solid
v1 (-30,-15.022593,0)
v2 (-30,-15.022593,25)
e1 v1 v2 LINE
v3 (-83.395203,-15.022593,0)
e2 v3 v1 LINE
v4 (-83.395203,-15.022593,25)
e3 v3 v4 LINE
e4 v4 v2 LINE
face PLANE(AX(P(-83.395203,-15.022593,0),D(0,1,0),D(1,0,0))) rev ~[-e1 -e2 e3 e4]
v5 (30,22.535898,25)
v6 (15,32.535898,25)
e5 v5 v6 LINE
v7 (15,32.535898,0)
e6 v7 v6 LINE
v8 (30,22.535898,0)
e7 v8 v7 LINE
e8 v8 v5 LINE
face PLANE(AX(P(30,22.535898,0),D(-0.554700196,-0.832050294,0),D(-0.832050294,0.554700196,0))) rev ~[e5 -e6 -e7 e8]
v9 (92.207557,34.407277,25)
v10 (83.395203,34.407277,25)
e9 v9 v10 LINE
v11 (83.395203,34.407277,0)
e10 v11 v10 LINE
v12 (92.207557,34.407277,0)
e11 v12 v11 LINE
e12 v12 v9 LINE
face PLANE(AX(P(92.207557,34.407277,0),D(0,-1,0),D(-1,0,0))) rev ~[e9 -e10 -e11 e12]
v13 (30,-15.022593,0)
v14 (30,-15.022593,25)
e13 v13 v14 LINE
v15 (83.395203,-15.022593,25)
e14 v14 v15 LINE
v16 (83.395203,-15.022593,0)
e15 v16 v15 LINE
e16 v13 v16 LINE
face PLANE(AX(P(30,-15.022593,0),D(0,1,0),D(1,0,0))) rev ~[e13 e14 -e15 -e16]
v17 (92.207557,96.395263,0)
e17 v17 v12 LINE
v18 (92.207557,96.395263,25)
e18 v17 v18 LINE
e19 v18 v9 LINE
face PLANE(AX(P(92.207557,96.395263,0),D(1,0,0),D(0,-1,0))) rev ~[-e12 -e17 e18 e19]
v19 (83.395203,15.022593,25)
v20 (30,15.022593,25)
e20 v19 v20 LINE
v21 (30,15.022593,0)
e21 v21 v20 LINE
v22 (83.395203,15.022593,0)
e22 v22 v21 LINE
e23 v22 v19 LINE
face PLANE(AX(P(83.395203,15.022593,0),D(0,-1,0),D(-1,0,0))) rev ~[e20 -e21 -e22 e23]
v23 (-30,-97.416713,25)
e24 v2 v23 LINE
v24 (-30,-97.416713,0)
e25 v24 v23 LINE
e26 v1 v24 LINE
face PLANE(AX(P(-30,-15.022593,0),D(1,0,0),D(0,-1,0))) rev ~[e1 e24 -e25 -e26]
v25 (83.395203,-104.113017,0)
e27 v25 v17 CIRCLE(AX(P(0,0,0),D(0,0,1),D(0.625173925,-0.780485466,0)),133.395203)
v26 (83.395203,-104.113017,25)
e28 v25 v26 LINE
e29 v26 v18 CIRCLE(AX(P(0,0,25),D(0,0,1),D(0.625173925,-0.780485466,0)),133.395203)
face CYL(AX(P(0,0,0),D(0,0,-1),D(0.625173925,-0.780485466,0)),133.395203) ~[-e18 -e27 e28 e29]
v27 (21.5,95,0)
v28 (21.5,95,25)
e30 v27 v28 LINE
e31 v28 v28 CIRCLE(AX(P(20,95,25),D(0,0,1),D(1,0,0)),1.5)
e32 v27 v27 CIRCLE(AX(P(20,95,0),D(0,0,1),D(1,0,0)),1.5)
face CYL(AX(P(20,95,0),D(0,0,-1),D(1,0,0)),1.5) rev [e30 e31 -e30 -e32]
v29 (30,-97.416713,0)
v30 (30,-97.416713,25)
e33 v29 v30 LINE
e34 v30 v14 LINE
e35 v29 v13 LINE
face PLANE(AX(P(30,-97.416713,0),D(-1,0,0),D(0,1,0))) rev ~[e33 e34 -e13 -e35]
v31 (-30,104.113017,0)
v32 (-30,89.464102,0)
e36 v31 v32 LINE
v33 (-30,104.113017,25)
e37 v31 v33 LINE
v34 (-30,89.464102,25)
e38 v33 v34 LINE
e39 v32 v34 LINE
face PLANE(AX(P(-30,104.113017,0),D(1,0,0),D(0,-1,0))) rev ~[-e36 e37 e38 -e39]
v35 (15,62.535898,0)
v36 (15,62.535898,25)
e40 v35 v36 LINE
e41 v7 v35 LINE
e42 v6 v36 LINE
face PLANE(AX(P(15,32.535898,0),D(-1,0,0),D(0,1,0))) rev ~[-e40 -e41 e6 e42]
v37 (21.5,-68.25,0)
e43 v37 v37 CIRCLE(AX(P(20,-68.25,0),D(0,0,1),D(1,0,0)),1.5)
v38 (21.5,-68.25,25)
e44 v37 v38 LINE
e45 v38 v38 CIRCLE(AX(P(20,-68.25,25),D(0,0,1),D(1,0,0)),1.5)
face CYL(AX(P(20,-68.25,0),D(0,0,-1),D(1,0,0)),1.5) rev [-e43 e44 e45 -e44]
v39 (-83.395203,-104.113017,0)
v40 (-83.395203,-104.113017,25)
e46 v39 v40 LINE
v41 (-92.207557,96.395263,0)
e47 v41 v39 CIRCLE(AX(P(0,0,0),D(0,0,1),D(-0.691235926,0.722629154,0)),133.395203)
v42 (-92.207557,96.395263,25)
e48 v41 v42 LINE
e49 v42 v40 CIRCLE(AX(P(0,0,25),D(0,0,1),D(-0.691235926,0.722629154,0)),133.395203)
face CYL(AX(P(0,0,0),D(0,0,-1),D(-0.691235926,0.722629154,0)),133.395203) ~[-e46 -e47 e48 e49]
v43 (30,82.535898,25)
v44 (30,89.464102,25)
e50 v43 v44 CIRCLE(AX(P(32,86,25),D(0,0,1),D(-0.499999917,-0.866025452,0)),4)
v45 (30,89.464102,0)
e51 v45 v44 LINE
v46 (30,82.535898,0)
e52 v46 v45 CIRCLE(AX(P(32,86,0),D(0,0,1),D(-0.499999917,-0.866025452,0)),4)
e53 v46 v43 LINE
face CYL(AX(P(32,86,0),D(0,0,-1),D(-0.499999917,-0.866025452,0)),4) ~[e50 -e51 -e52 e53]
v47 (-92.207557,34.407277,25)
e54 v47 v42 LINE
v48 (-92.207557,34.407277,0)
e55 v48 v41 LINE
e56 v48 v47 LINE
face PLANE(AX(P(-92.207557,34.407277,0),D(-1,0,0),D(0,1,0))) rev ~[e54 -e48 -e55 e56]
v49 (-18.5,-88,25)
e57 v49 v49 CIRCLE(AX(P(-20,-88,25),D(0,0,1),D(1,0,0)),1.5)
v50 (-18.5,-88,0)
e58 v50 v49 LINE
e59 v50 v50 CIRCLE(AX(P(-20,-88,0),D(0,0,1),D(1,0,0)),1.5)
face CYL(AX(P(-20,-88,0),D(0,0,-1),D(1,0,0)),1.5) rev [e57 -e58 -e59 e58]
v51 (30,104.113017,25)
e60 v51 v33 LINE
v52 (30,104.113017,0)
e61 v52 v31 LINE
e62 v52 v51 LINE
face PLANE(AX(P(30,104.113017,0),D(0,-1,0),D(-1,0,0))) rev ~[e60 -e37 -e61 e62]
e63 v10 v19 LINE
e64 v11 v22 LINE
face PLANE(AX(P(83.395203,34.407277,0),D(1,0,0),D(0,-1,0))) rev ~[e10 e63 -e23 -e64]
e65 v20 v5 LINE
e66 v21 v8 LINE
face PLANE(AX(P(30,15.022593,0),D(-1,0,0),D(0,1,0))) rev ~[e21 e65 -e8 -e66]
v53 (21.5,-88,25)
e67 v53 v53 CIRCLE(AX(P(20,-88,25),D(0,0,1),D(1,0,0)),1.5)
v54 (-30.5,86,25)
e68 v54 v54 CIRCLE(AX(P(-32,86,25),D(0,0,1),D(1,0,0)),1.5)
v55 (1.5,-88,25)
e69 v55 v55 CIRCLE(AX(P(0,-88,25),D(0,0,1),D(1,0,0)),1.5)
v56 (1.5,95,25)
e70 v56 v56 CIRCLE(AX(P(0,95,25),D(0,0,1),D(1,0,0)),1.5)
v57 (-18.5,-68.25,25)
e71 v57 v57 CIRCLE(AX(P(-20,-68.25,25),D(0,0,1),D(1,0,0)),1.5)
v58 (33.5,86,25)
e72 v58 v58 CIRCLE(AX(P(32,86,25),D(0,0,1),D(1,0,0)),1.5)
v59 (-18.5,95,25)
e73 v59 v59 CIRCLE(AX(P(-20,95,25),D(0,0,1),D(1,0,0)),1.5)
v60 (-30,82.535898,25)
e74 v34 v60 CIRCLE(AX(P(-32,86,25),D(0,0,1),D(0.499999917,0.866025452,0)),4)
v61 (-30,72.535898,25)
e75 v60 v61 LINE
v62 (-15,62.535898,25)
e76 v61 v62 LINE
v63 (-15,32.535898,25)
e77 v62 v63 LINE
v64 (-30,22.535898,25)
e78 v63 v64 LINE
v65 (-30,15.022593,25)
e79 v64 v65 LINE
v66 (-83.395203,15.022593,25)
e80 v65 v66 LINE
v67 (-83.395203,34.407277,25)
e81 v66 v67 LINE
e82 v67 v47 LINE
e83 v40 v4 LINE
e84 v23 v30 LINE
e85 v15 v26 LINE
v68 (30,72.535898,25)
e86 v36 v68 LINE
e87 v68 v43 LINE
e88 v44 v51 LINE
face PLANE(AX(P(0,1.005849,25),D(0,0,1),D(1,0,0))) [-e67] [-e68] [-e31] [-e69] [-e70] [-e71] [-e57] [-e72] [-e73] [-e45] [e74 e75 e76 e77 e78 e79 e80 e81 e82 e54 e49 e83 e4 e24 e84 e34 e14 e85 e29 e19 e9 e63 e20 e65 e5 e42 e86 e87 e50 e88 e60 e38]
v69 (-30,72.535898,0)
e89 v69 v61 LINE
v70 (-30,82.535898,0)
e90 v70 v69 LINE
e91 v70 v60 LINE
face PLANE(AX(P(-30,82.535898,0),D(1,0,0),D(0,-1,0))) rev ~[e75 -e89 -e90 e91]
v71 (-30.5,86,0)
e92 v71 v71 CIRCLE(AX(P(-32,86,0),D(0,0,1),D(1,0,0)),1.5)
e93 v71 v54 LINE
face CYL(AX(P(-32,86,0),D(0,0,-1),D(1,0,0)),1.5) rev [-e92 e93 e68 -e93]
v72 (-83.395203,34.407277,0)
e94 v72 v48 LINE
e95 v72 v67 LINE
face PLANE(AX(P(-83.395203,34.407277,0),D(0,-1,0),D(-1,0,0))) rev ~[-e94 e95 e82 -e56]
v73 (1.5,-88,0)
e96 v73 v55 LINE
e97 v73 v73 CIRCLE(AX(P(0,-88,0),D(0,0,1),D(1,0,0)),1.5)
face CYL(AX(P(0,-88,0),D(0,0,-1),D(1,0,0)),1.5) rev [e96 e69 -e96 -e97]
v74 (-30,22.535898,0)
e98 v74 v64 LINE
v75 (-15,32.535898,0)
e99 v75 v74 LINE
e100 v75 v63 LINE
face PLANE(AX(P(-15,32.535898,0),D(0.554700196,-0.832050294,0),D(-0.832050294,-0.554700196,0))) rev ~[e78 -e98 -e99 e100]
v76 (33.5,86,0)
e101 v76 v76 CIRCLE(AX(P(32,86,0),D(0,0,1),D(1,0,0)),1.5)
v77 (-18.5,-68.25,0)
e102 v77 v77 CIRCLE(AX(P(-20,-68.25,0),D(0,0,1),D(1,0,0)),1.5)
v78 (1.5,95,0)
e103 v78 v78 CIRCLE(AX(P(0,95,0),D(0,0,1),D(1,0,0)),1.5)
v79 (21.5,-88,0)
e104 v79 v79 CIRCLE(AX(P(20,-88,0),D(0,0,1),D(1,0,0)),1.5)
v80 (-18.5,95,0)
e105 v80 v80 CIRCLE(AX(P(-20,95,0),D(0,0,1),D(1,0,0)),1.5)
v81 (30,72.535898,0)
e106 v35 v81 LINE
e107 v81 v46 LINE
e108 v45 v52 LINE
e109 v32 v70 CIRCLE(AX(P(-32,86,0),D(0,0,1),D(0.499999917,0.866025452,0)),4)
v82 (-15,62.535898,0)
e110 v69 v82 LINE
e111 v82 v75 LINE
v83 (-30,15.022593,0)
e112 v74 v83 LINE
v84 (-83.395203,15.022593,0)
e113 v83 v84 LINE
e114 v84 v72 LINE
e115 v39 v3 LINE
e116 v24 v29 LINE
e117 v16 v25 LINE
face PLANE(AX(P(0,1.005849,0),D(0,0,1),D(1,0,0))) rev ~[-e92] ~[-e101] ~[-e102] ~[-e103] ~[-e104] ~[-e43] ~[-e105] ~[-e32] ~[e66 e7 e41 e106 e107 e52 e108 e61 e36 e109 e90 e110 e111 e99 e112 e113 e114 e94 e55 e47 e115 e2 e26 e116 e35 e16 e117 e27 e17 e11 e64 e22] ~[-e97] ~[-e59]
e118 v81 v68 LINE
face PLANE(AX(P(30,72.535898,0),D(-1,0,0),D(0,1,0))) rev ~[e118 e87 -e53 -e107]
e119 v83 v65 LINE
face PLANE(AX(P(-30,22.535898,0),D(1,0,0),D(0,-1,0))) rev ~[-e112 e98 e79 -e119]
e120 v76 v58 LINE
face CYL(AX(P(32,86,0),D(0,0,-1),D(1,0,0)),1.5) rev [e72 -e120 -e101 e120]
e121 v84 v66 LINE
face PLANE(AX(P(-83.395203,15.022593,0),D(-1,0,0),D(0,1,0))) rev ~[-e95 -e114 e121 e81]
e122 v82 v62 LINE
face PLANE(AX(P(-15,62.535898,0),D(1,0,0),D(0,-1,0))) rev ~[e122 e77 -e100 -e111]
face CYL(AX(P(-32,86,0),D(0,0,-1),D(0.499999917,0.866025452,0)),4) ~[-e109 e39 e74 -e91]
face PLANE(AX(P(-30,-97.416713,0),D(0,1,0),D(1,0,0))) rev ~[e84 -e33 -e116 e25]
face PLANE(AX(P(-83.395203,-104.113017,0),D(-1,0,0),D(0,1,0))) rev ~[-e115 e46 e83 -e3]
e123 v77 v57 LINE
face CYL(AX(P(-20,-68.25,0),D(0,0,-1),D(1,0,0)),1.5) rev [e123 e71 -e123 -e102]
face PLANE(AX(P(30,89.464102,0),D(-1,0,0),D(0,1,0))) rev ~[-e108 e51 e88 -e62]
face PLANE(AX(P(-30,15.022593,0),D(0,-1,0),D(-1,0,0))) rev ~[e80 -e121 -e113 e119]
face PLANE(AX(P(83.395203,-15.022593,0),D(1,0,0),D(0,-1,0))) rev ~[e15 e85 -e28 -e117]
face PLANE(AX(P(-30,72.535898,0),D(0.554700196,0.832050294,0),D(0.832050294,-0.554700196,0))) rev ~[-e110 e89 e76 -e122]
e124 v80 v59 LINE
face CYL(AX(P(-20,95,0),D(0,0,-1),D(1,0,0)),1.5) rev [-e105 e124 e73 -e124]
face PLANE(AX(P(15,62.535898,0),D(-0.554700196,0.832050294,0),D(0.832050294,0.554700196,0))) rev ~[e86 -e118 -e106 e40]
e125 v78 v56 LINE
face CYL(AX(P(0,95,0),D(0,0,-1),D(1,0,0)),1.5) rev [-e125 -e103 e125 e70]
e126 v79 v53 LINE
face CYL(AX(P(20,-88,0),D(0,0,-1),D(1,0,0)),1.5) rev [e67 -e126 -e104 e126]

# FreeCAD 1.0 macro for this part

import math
import FreeCAD as App
import Part
import Sketcher
Q = App.Units.Quantity

doc = App.newDocument("Part")
body = doc.addObject("PartDesign::Body", "Body")

sketch1 = body.newObject("Sketcher::SketchObject", "Sketch")
sketch1.AttachmentSupport = (doc.getObject("XY_Plane"), [""])
sketch1.MapMode = "FlatFace"
sketch1.addGeometry(Part.LineSegment(App.Vector(-30, -15, 0), App.Vector(-30, -97.4, 0)), False)
sketch1.addGeometry(Part.LineSegment(App.Vector(-30, -97.4, 0), App.Vector(30, -97.4, 0)), False)
sketch1.addGeometry(Part.LineSegment(App.Vector(30, -97.4, 0), App.Vector(30, -15, 0)), False)
sketch1.addGeometry(Part.LineSegment(App.Vector(30, -15, 0), App.Vector(83.4, -15, 0)), False)
sketch1.addGeometry(Part.LineSegment(App.Vector(83.4, -15, 0), App.Vector(83.4, -104.1, 0)), False)
sketch1.addGeometry(Part.ArcOfCircle(Part.Circle(App.Vector(0, 0, 0), App.Vector(0, 0, 1), 133.4), math.radians(-51), math.radians(46)), False)
sketch1.addGeometry(Part.LineSegment(App.Vector(92.2, 96.4, 0), App.Vector(92.2, 34.4, 0)), False)
sketch1.addGeometry(Part.LineSegment(App.Vector(92.2, 34.4, 0), App.Vector(83.4, 34.4, 0)), False)
sketch1.addGeometry(Part.LineSegment(App.Vector(83.4, 34.4, 0), App.Vector(83.4, 15, 0)), False)
sketch1.addGeometry(Part.LineSegment(App.Vector(83.4, 15, 0), App.Vector(30, 15, 0)), False)
sketch1.addGeometry(Part.LineSegment(App.Vector(30, 15, 0), App.Vector(30, 22.5, 0)), False)
sketch1.addGeometry(Part.LineSegment(App.Vector(30, 22.5, 0), App.Vector(15, 32.5, 0)), False)
sketch1.addGeometry(Part.LineSegment(App.Vector(15, 32.5, 0), App.Vector(15, 62.5, 0)), False)
sketch1.addGeometry(Part.LineSegment(App.Vector(15, 62.5, 0), App.Vector(30, 72.5, 0)), False)
sketch1.addGeometry(Part.LineSegment(App.Vector(30, 72.5, 0), App.Vector(30, 82.5, 0)), False)
sketch1.addGeometry(Part.ArcOfCircle(Part.Circle(App.Vector(32, 86, 0), App.Vector(0, 0, 1), 4), math.radians(-120), math.radians(120)), False)
sketch1.addGeometry(Part.LineSegment(App.Vector(30, 89.5, 0), App.Vector(30, 104.1, 0)), False)
sketch1.addGeometry(Part.LineSegment(App.Vector(30, 104.1, 0), App.Vector(-30, 104.1, 0)), False)
sketch1.addGeometry(Part.LineSegment(App.Vector(-30, 104.1, 0), App.Vector(-30, 89.5, 0)), False)
sketch1.addGeometry(Part.ArcOfCircle(Part.Circle(App.Vector(-32, 86, 0), App.Vector(0, 0, 1), 4), math.radians(60), math.radians(300)), False)
sketch1.addGeometry(Part.LineSegment(App.Vector(-30, 82.5, 0), App.Vector(-30, 72.5, 0)), False)
sketch1.addGeometry(Part.LineSegment(App.Vector(-30, 72.5, 0), App.Vector(-15, 62.5, 0)), False)
sketch1.addGeometry(Part.LineSegment(App.Vector(-15, 62.5, 0), App.Vector(-15, 32.5, 0)), False)
sketch1.addGeometry(Part.LineSegment(App.Vector(-15, 32.5, 0), App.Vector(-30, 22.5, 0)), False)
sketch1.addGeometry(Part.LineSegment(App.Vector(-30, 22.5, 0), App.Vector(-30, 15, 0)), False)
sketch1.addGeometry(Part.LineSegment(App.Vector(-30, 15, 0), App.Vector(-83.4, 15, 0)), False)
sketch1.addGeometry(Part.LineSegment(App.Vector(-83.4, 15, 0), App.Vector(-83.4, 34.4, 0)), False)
sketch1.addGeometry(Part.LineSegment(App.Vector(-83.4, 34.4, 0), App.Vector(-92.2, 34.4, 0)), False)
sketch1.addGeometry(Part.LineSegment(App.Vector(-92.2, 34.4, 0), App.Vector(-92.2, 96.4, 0)), False)
sketch1.addGeometry(Part.ArcOfCircle(Part.Circle(App.Vector(0, 0, 0), App.Vector(0, 0, 1), 133.4), math.radians(134), math.radians(231)), False)
sketch1.addGeometry(Part.LineSegment(App.Vector(-83.4, -104.1, 0), App.Vector(-83.4, -15, 0)), False)
sketch1.addGeometry(Part.LineSegment(App.Vector(-83.4, -15, 0), App.Vector(-30, -15, 0)), False)
sketch1.addGeometry(Part.Circle(App.Vector(-20, -88, 0), App.Vector(0, 0, 1), 1.5), False)
sketch1.addGeometry(Part.Circle(App.Vector(-20, -68.2, 0), App.Vector(0, 0, 1), 1.5), False)
sketch1.addGeometry(Part.Circle(App.Vector(0, -88, 0), App.Vector(0, 0, 1), 1.5), False)
sketch1.addGeometry(Part.Circle(App.Vector(20, -88, 0), App.Vector(0, 0, 1), 1.5), False)
sketch1.addGeometry(Part.Circle(App.Vector(20, -68.2, 0), App.Vector(0, 0, 1), 1.5), False)
sketch1.addGeometry(Part.Circle(App.Vector(-32, 86, 0), App.Vector(0, 0, 1), 1.5), False)
sketch1.addGeometry(Part.Circle(App.Vector(-20, 95, 0), App.Vector(0, 0, 1), 1.5), False)
sketch1.addGeometry(Part.Circle(App.Vector(0, 95, 0), App.Vector(0, 0, 1), 1.5), False)
sketch1.addGeometry(Part.Circle(App.Vector(20, 95, 0), App.Vector(0, 0, 1), 1.5), False)
sketch1.addGeometry(Part.Circle(App.Vector(32, 86, 0), App.Vector(0, 0, 1), 1.5), False)
sketch1.addConstraint(Sketcher.Constraint("Coincident", 0, 2, 1, 1))
sketch1.addConstraint(Sketcher.Constraint("Coincident", 1, 2, 2, 1))
sketch1.addConstraint(Sketcher.Constraint("Coincident", 2, 2, 3, 1))
sketch1.addConstraint(Sketcher.Constraint("Coincident", 3, 2, 4, 1))
sketch1.addConstraint(Sketcher.Constraint("Coincident", 4, 2, 5, 1))
sketch1.addConstraint(Sketcher.Constraint("Coincident", 5, 2, 6, 1))
sketch1.addConstraint(Sketcher.Constraint("Coincident", 6, 2, 7, 1))
sketch1.addConstraint(Sketcher.Constraint("Coincident", 7, 2, 8, 1))
sketch1.addConstraint(Sketcher.Constraint("Coincident", 8, 2, 9, 1))
sketch1.addConstraint(Sketcher.Constraint("Coincident", 9, 2, 10, 1))
sketch1.addConstraint(Sketcher.Constraint("Coincident", 10, 2, 11, 1))
sketch1.addConstraint(Sketcher.Constraint("Coincident", 11, 2, 12, 1))
sketch1.addConstraint(Sketcher.Constraint("Coincident", 12, 2, 13, 1))
sketch1.addConstraint(Sketcher.Constraint("Coincident", 13, 2, 14, 1))
sketch1.addConstraint(Sketcher.Constraint("Coincident", 14, 2, 15, 1))
sketch1.addConstraint(Sketcher.Constraint("Coincident", 15, 2, 16, 1))
sketch1.addConstraint(Sketcher.Constraint("Coincident", 16, 2, 17, 1))
sketch1.addConstraint(Sketcher.Constraint("Coincident", 17, 2, 18, 1))
sketch1.addConstraint(Sketcher.Constraint("Coincident", 18, 2, 19, 1))
sketch1.addConstraint(Sketcher.Constraint("Coincident", 19, 2, 20, 1))
sketch1.addConstraint(Sketcher.Constraint("Coincident", 20, 2, 21, 1))
sketch1.addConstraint(Sketcher.Constraint("Coincident", 21, 2, 22, 1))
sketch1.addConstraint(Sketcher.Constraint("Coincident", 22, 2, 23, 1))
sketch1.addConstraint(Sketcher.Constraint("Coincident", 23, 2, 24, 1))
sketch1.addConstraint(Sketcher.Constraint("Coincident", 24, 2, 25, 1))
sketch1.addConstraint(Sketcher.Constraint("Coincident", 25, 2, 26, 1))
sketch1.addConstraint(Sketcher.Constraint("Coincident", 26, 2, 27, 1))
sketch1.addConstraint(Sketcher.Constraint("Coincident", 27, 2, 28, 1))
sketch1.addConstraint(Sketcher.Constraint("Coincident", 28, 2, 29, 1))
sketch1.addConstraint(Sketcher.Constraint("Coincident", 29, 2, 30, 1))
sketch1.addConstraint(Sketcher.Constraint("Coincident", 30, 2, 31, 1))
sketch1.addConstraint(Sketcher.Constraint("Coincident", 31, 2, 0, 1))
sketch1.addConstraint(Sketcher.Constraint("Vertical", 0))
sketch1.addConstraint(Sketcher.Constraint("Horizontal", 1))
sketch1.addConstraint(Sketcher.Constraint("Vertical", 2))
sketch1.addConstraint(Sketcher.Constraint("Horizontal", 3))
sketch1.addConstraint(Sketcher.Constraint("Vertical", 4))
sketch1.addConstraint(Sketcher.Constraint("Vertical", 6))
sketch1.addConstraint(Sketcher.Constraint("Horizontal", 7))
sketch1.addConstraint(Sketcher.Constraint("Vertical", 8))
sketch1.addConstraint(Sketcher.Constraint("Horizontal", 9))
sketch1.addConstraint(Sketcher.Constraint("Vertical", 10))
sketch1.addConstraint(Sketcher.Constraint("Vertical", 12))
sketch1.addConstraint(Sketcher.Constraint("Vertical", 14))
sketch1.addConstraint(Sketcher.Constraint("Vertical", 16))
sketch1.addConstraint(Sketcher.Constraint("Horizontal", 17))
sketch1.addConstraint(Sketcher.Constraint("Vertical", 18))
sketch1.addConstraint(Sketcher.Constraint("Vertical", 20))
sketch1.addConstraint(Sketcher.Constraint("Vertical", 22))
sketch1.addConstraint(Sketcher.Constraint("Vertical", 24))
sketch1.addConstraint(Sketcher.Constraint("Horizontal", 25))
sketch1.addConstraint(Sketcher.Constraint("Vertical", 26))
sketch1.addConstraint(Sketcher.Constraint("Horizontal", 27))
sketch1.addConstraint(Sketcher.Constraint("Vertical", 28))
sketch1.addConstraint(Sketcher.Constraint("Vertical", 30))
sketch1.addConstraint(Sketcher.Constraint("Horizontal", 31))
sketch1.addConstraint(Sketcher.Constraint("Coincident", 5, 3, -1, 1))
sketch1.addConstraint(Sketcher.Constraint("Coincident", 29, 3, -1, 1))
sketch1.addConstraint(Sketcher.Constraint("Coincident", 37, 3, 19, 3))
sketch1.addConstraint(Sketcher.Constraint("Coincident", 41, 3, 15, 3))
sketch1.addConstraint(Sketcher.Constraint("Equal", 15, 19))
sketch1.addConstraint(Sketcher.Constraint("Equal", 5, 29))
sketch1.addConstraint(Sketcher.Constraint("Equal", 32, 33))
sketch1.addConstraint(Sketcher.Constraint("Equal", 33, 34))
sketch1.addConstraint(Sketcher.Constraint("Equal", 34, 35))
sketch1.addConstraint(Sketcher.Constraint("Equal", 35, 36))
sketch1.addConstraint(Sketcher.Constraint("Equal", 36, 37))
sketch1.addConstraint(Sketcher.Constraint("Equal", 37, 38))
sketch1.addConstraint(Sketcher.Constraint("Equal", 38, 39))
sketch1.addConstraint(Sketcher.Constraint("Equal", 39, 40))
sketch1.addConstraint(Sketcher.Constraint("Equal", 40, 41))
sketch1.addConstraint(Sketcher.Constraint("Symmetric", 2, 2, 24, 2, -1, 1))
sketch1.addConstraint(Sketcher.Constraint("Symmetric", 8, 2, 30, 2, -1, 1))
sketch1.addConstraint(Sketcher.Constraint("Symmetric", 15, 3, 19, 3, -2))
sketch1.addConstraint(Sketcher.Constraint("Symmetric", 32, 3, 35, 3, -2))
sketch1.addConstraint(Sketcher.Constraint("Symmetric", 33, 3, 36, 3, -2))
sketch1.addConstraint(Sketcher.Constraint("Symmetric", 38, 3, 40, 3, -2))
sketch1.addConstraint(Sketcher.Constraint("Symmetric", 13, 2, 20, 2, -2))
sketch1.addConstraint(Sketcher.Constraint("Symmetric", 12, 2, 21, 2, -2))
sketch1.addConstraint(Sketcher.Constraint("Symmetric", 10, 2, 23, 2, -2))
sketch1.addConstraint(Sketcher.Constraint("Symmetric", 8, 2, 25, 2, -2))
sketch1.addConstraint(Sketcher.Constraint("Symmetric", 6, 2, 27, 2, -2))
sketch1.addConstraint(Sketcher.Constraint("PointOnObject", 34, 3, -2))
sketch1.addConstraint(Sketcher.Constraint("PointOnObject", 39, 3, -2))
sketch1.addConstraint(Sketcher.Constraint("Parallel", 11, 21))
sketch1.addConstraint(Sketcher.Constraint("Parallel", 13, 23))
sketch1.addConstraint(Sketcher.Constraint("Horizontal", 32, 3, 34, 3))
sketch1.addConstraint(Sketcher.Constraint("Horizontal", 38, 3, 39, 3))
sketch1.addConstraint(Sketcher.Constraint("Horizontal", 15, 2, 18, 2))
sketch1.addConstraint(Sketcher.Constraint("Horizontal", 4, 2, 29, 2))
sketch1.addConstraint(Sketcher.Constraint("Vertical", 32, 3, 33, 3))
sketch1.addConstraint(Sketcher.Constraint("Vertical", 33, 3, 38, 3))
sketch1.addConstraint(Sketcher.Constraint("Vertical", 10, 2, 13, 2))
sketch1.addConstraint(Sketcher.Constraint("Vertical", 14, 2, 15, 2))
sketch1.addConstraint(Sketcher.Constraint("Vertical", 0, 2, 17, 2))
sketch1.addConstraint(Sketcher.Constraint("Diameter", 32, Q("3 mm")))
sketch1.addConstraint(Sketcher.Constraint("Radius", 15, Q("4 mm")))
sketch1.addConstraint(Sketcher.Constraint("DistanceX", 1, 1, 1, 2, Q("60 mm")))
sketch1.addConstraint(Sketcher.Constraint("DistanceY", 12, 1, 12, 2, Q("30 mm")))
sketch1.addConstraint(Sketcher.Constraint("DistanceY", 14, 1, 14, 2, Q("10 mm")))
sketch1.addConstraint(Sketcher.Constraint("DistanceX", -1, 1, 15, 3, Q("32 mm")))
sketch1.addConstraint(Sketcher.Constraint("DistanceY", -1, 1, 15, 3, Q("86 mm")))
sketch1.addConstraint(Sketcher.Constraint("DistanceX", 32, 3, -1, 1, Q("20 mm")))
sketch1.addConstraint(Sketcher.Constraint("DistanceY", 32, 3, -1, 1, Q("88 mm")))
sketch1.addConstraint(Sketcher.Constraint("DistanceY", -1, 1, 38, 3, Q("95 mm")))
sketch1.addConstraint(Sketcher.Constraint("DistanceX", -1, 1, 11, 2, Q("15 mm")))
sketch1.addConstraint(Sketcher.Constraint("DistanceY", 10, 2, 11, 2, Q("10 mm")))
sketch1.addConstraint(Sketcher.Constraint("DistanceY", 33, 3, -1, 1, Q("68.25 mm")))
sketch1.addConstraint(Sketcher.Constraint("Radius", 5, Q("133.395203 mm")))
sketch1.addConstraint(Sketcher.Constraint("DistanceY", 0, 2, 0, 1, Q("82.39412 mm")))
sketch1.addConstraint(Sketcher.Constraint("DistanceX", 3, 1, 3, 2, Q("53.395203 mm")))
sketch1.addConstraint(Sketcher.Constraint("DistanceX", 7, 2, 7, 1, Q("8.812354 mm")))
sketch1.addConstraint(Sketcher.Constraint("DistanceY", 4, 2, 4, 1, Q("89.090424 mm")))
sketch1.addConstraint(Sketcher.Constraint("DistanceY", 6, 2, 6, 1, Q("61.987986 mm")))
sketch1.addConstraint(Sketcher.Constraint("DistanceY", 16, 1, 16, 2, Q("14.648915 mm")))
pad1 = body.newObject("PartDesign::Pad", "Pad")
pad1.Profile = sketch1
pad1.Length = 25

doc.recompute()
